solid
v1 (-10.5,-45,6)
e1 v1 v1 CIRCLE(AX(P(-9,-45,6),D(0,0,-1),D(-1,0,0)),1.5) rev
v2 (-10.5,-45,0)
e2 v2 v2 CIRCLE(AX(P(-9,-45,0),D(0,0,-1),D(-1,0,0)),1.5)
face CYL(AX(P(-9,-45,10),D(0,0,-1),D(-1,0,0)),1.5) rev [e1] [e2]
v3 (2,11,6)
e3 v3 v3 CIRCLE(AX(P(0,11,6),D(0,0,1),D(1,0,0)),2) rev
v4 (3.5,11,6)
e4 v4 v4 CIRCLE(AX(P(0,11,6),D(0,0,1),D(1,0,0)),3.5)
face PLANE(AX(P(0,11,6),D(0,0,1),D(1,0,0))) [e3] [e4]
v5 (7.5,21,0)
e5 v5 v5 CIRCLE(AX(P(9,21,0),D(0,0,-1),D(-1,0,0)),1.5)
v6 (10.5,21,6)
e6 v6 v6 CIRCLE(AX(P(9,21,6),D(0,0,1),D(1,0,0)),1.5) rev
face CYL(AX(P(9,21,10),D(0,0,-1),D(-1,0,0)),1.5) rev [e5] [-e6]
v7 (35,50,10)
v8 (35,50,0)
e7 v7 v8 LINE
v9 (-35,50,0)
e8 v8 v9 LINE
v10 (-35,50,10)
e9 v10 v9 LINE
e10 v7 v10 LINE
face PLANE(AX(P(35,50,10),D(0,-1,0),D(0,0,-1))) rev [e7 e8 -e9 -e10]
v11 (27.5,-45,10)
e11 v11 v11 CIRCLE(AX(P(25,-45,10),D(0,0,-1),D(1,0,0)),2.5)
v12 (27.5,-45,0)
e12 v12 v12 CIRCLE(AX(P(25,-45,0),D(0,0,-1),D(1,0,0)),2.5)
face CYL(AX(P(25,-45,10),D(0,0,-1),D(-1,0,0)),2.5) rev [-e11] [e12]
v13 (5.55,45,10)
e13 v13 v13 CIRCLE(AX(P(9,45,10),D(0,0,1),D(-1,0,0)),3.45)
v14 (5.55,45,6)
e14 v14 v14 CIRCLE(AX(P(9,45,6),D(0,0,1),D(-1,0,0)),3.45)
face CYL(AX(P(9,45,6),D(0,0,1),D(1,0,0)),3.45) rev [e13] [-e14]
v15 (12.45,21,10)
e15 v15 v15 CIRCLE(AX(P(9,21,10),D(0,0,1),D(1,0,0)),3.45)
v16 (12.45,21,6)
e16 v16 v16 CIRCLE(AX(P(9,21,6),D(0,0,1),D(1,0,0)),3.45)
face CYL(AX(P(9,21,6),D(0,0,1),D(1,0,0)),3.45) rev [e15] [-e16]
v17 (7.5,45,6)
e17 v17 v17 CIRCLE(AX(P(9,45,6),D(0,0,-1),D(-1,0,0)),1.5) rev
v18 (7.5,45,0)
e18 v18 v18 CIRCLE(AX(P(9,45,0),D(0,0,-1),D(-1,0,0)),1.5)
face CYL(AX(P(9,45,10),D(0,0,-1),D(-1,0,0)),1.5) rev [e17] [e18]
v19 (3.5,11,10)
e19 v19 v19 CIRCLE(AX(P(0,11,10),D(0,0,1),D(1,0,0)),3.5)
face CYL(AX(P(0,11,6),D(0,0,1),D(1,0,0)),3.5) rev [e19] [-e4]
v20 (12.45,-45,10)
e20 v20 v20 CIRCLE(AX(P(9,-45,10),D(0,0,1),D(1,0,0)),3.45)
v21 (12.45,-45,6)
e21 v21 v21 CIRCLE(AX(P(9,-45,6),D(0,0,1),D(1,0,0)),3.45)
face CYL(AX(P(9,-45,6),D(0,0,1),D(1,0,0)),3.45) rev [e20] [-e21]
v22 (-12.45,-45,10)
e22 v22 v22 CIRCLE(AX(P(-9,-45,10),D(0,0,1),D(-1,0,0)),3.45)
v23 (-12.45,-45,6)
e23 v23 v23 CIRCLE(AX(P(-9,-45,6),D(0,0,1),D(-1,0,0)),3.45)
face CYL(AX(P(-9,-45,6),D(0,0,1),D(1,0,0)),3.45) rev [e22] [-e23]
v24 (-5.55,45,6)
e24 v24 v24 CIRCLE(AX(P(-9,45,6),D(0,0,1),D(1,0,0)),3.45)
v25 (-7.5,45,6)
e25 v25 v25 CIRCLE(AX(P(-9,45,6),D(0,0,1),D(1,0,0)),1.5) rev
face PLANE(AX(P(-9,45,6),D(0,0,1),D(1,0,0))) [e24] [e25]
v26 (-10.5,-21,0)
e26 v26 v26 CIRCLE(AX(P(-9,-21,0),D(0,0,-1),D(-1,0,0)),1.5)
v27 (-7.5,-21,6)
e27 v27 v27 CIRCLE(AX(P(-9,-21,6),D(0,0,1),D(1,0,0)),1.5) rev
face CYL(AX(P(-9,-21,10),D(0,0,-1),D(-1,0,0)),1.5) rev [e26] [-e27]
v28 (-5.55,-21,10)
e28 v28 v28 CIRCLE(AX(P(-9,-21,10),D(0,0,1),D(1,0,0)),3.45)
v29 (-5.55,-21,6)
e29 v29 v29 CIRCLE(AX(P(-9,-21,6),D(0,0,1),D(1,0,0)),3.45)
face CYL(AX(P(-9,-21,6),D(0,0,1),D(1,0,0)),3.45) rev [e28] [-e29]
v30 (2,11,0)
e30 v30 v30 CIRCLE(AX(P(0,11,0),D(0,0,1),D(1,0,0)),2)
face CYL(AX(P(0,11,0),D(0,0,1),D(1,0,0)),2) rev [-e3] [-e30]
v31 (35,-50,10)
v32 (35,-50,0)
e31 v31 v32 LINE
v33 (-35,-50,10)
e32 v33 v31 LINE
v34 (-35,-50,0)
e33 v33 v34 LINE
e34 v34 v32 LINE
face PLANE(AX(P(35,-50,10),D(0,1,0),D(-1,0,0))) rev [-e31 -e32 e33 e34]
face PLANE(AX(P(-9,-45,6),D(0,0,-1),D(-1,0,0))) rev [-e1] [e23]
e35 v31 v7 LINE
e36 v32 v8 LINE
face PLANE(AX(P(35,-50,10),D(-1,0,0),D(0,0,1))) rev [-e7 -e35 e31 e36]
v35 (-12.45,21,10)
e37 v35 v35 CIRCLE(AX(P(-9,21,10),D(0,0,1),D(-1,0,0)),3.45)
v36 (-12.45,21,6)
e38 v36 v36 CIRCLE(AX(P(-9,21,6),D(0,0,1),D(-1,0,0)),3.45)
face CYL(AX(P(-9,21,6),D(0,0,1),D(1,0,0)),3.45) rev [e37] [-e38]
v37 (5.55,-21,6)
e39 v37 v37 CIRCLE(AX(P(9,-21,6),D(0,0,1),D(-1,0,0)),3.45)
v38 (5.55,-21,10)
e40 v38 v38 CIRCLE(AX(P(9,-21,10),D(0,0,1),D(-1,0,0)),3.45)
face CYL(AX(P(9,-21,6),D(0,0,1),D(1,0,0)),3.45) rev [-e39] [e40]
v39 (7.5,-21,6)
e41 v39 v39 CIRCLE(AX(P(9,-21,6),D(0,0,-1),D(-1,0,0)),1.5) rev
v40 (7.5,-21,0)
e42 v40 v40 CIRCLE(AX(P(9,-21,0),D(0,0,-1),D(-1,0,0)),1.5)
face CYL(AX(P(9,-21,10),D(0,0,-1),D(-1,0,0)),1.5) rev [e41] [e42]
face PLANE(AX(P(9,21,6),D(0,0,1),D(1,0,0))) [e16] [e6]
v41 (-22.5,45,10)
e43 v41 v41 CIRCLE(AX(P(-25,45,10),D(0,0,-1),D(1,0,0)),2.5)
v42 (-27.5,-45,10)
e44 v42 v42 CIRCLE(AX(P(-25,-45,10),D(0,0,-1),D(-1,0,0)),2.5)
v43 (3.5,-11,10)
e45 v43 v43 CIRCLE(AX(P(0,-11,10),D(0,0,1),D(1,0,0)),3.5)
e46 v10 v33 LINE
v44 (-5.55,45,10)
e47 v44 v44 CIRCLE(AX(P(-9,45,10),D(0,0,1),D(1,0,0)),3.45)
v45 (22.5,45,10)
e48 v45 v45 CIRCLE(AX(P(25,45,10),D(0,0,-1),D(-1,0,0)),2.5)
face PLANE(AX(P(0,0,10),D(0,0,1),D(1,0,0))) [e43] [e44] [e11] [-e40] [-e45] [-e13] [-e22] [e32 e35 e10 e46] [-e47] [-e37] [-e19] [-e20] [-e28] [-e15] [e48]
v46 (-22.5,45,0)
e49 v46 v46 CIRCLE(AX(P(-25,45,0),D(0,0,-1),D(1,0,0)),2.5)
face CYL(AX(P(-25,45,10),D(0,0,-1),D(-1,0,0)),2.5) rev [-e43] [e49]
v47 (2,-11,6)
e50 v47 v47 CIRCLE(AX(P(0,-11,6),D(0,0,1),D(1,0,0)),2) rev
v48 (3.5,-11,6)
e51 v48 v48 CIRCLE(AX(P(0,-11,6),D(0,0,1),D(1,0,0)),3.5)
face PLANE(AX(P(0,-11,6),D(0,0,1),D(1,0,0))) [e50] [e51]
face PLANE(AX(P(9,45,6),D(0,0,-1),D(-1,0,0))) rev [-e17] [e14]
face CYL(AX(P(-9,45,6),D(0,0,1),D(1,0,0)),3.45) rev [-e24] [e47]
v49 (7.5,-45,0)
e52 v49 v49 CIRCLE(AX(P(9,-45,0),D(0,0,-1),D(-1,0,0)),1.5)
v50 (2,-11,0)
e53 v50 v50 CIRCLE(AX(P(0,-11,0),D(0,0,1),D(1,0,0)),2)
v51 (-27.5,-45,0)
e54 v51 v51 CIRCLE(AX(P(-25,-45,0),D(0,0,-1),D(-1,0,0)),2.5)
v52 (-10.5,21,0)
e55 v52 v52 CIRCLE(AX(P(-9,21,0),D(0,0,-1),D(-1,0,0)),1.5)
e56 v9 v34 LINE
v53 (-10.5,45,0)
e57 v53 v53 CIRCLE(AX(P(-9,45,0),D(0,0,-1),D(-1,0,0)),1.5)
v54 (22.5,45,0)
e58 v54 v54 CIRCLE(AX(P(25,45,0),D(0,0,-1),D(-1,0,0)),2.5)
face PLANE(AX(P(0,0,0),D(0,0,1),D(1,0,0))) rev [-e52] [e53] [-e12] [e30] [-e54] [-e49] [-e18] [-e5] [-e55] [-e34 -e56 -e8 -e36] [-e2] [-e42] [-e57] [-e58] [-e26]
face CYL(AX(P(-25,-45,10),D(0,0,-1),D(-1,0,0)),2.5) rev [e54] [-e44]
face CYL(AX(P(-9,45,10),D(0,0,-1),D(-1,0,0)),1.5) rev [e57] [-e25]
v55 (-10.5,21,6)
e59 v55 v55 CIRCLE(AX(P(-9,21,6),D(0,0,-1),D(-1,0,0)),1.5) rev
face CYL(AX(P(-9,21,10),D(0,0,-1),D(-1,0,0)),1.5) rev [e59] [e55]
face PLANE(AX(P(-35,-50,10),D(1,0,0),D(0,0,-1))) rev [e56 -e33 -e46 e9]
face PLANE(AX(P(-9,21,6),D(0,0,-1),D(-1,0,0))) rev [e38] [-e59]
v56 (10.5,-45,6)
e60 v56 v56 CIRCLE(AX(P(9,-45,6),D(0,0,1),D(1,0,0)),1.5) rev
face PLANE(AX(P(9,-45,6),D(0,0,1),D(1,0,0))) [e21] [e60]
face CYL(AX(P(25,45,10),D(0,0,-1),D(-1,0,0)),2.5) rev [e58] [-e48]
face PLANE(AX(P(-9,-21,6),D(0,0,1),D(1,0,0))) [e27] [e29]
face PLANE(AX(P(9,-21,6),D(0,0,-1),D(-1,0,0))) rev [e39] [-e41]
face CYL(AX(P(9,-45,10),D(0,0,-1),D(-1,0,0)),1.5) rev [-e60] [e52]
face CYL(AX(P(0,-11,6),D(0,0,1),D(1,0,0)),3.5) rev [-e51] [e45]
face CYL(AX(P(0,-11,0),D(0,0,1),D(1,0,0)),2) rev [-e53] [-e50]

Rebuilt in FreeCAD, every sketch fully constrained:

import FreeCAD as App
import Part
import Sketcher

V = App.Vector
Q = App.Units.Quantity

doc = App.newDocument("Part")
body = doc.addObject("PartDesign::Body", "Body")

# Sketch on XY plane
sketch1 = body.newObject("Sketcher::SketchObject", "Sketch")
sketch1.AttachmentSupport = (doc.getObject("XY_Plane"), [""])
sketch1.MapMode = "FlatFace"
sketch1.addGeometry([
    Part.LineSegment(V(-35, 50, 0), V(-35, -50, 0)),
    Part.LineSegment(V(-35, -50, 0), V(35, -50, 0)),
    Part.LineSegment(V(35, -50, 0), V(35, 50, 0)),
    Part.LineSegment(V(35, 50, 0), V(-35, 50, 0)),
], False)
sketch1.addConstraint([
    Sketcher.Constraint("Coincident", 0, 2, 1, 1),
    Sketcher.Constraint("Coincident", 1, 2, 2, 1),
    Sketcher.Constraint("Coincident", 2, 2, 3, 1),
    Sketcher.Constraint("Coincident", 3, 2, 0, 1),
    Sketcher.Constraint("Vertical", 0),
    Sketcher.Constraint("Horizontal", 1),
    Sketcher.Constraint("Vertical", 2),
    Sketcher.Constraint("Horizontal", 3),
    Sketcher.Constraint("Symmetric", 0, 2, 2, 2, -1, 1),
    Sketcher.Constraint("DistanceX", 1, 1, 1, 2, Q("70 mm")),
    Sketcher.Constraint("DistanceY", 0, 2, 0, 1, Q("100 mm")),
])
pad1 = body.newObject("PartDesign::Pad", "Pad")
pad1.Profile = sketch1
pad1.Length = 10

# Sketch on XY plane
sketch2 = body.newObject("Sketcher::SketchObject", "Sketch001")
sketch2.AttachmentSupport = (doc.getObject("XY_Plane"), [""])
sketch2.MapMode = "FlatFace"
sketch2.addGeometry([
    Part.Circle(V(25, 45, 0), V(0, 0, 1), 2.5),
    Part.Circle(V(-25, 45, 0), V(0, 0, 1), 2.5),
    Part.Circle(V(25, -45, 0), V(0, 0, 1), 2.5),
    Part.Circle(V(-25, -45, 0), V(0, 0, 1), 2.5),
], False)
sketch2.addConstraint([
    Sketcher.Constraint("Equal", 0, 1),
    Sketcher.Constraint("Equal", 1, 2),
    Sketcher.Constraint("Equal", 2, 3),
    Sketcher.Constraint("Symmetric", 1, 3, 2, 3, -1, 1),
    Sketcher.Constraint("Symmetric", 0, 3, 3, 3, -1, 1),
    Sketcher.Constraint("Symmetric", 0, 3, 1, 3, -2),
    Sketcher.Constraint("Diameter", 0, Q("5 mm")),
    Sketcher.Constraint("DistanceX", -1, 1, 0, 3, Q("25 mm")),
    Sketcher.Constraint("DistanceY", -1, 1, 0, 3, Q("45 mm")),
])
pocket1 = body.newObject("PartDesign::Pocket", "Pocket")
pocket1.Profile = sketch2
pocket1.Type = "ThroughAll"
pocket1.Reversed = True

# Sketch on XY plane
sketch3 = body.newObject("Sketcher::SketchObject", "Sketch002")
sketch3.AttachmentSupport = (doc.getObject("XY_Plane"), [""])
sketch3.MapMode = "FlatFace"
sketch3.addGeometry([
    Part.Circle(V(-9, 21, 0), V(0, 0, 1), 1.5),  # 0
    Part.Circle(V(-9, 45, 0), V(0, 0, 1), 1.5),  # 1
    Part.Circle(V(9, 21, 0), V(0, 0, 1), 1.5),  # 2
    Part.Circle(V(9, 45, 0), V(0, 0, 1), 1.5),  # 3
    Part.Circle(V(-9, -45, 0), V(0, 0, 1), 1.5),  # 4
    Part.Circle(V(-9, -21, 0), V(0, 0, 1), 1.5),  # 5
    Part.Circle(V(9, -45, 0), V(0, 0, 1), 1.5),  # 6
    Part.Circle(V(9, -21, 0), V(0, 0, 1), 1.5),  # 7
], False)
sketch3.addConstraint([
    Sketcher.Constraint("Equal", 0, 1),
    Sketcher.Constraint("Equal", 1, 2),
    Sketcher.Constraint("Equal", 2, 3),
    Sketcher.Constraint("Equal", 3, 4),
    Sketcher.Constraint("Equal", 4, 5),
    Sketcher.Constraint("Equal", 5, 6),
    Sketcher.Constraint("Equal", 6, 7),
    Sketcher.Constraint("Symmetric", 3, 3, 4, 3, -1, 1),
    Sketcher.Constraint("Symmetric", 2, 3, 5, 3, -1, 1),
    Sketcher.Constraint("Symmetric", 1, 3, 6, 3, -1, 1),
    Sketcher.Constraint("Symmetric", 0, 3, 7, 3, -1, 1),
    Sketcher.Constraint("Symmetric", 0, 3, 2, 3, -2),
    Sketcher.Constraint("Symmetric", 1, 3, 3, 3, -2),
    Sketcher.Constraint("Vertical", 0, 3, 1, 3),
    Sketcher.Constraint("Diameter", 0, Q("3 mm")),
    Sketcher.Constraint("DistanceX", 0, 3, -1, 1, Q("9 mm")),
    Sketcher.Constraint("DistanceY", -1, 1, 0, 3, Q("21 mm")),
    Sketcher.Constraint("DistanceY", -1, 1, 1, 3, Q("45 mm")),
])
pocket2 = body.newObject("PartDesign::Pocket", "Pocket001")
pocket2.Profile = sketch3
pocket2.Type = "ThroughAll"
pocket2.Reversed = True

# Sketch on XY plane
sketch4 = body.newObject("Sketcher::SketchObject", "Sketch003")
sketch4.AttachmentSupport = (doc.getObject("XY_Plane"), [""])
sketch4.MapMode = "FlatFace"
sketch4.AttachmentOffset = App.Placement(V(0, 0, 10), App.Rotation())
sketch4.addGeometry([
    Part.Circle(V(-9, 45, 0), V(0, 0, 1), 3.5),  # 0
    Part.Circle(V(-9, 21, 0), V(0, 0, 1), 3.5),  # 1
    Part.Circle(V(9, 21, 0), V(0, 0, 1), 3.5),  # 2
    Part.Circle(V(9, 45, 0), V(0, 0, 1), 3.5),  # 3
    Part.Circle(V(9, -21, 0), V(0, 0, 1), 3.5),  # 4
    Part.Circle(V(-9, -21, 0), V(0, 0, 1), 3.5),  # 5
    Part.Circle(V(-9, -45, 0), V(0, 0, 1), 3.5),  # 6
    Part.Circle(V(9, -45, 0), V(0, 0, 1), 3.5),  # 7
], False)
sketch4.addConstraint([
    Sketcher.Constraint("Equal", 0, 1),
    Sketcher.Constraint("Equal", 1, 2),
    Sketcher.Constraint("Equal", 2, 3),
    Sketcher.Constraint("Equal", 3, 4),
    Sketcher.Constraint("Equal", 4, 5),
    Sketcher.Constraint("Equal", 5, 6),
    Sketcher.Constraint("Equal", 6, 7),
    Sketcher.Constraint("Symmetric", 1, 3, 4, 3, -1, 1),
    Sketcher.Constraint("Symmetric", 2, 3, 5, 3, -1, 1),
    Sketcher.Constraint("Symmetric", 3, 3, 6, 3, -1, 1),
    Sketcher.Constraint("Symmetric", 0, 3, 7, 3, -1, 1),
    Sketcher.Constraint("Symmetric", 1, 3, 2, 3, -2),
    Sketcher.Constraint("Symmetric", 0, 3, 3, 3, -2),
    Sketcher.Constraint("Vertical", 0, 3, 1, 3),
    Sketcher.Constraint("Diameter", 0, Q("6.9 mm")),
    Sketcher.Constraint("DistanceX", 0, 3, -1, 1, Q("9 mm")),
    Sketcher.Constraint("DistanceY", -1, 1, 0, 3, Q("45 mm")),
    Sketcher.Constraint("DistanceY", -1, 1, 1, 3, Q("21 mm")),
])
pocket3 = body.newObject("PartDesign::Pocket", "Pocket002")
pocket3.Profile = sketch4
pocket3.Length = 4

# Sketch on XY plane
sketch5 = body.newObject("Sketcher::SketchObject", "Sketch004")
sketch5.AttachmentSupport = (doc.getObject("XY_Plane"), [""])
sketch5.MapMode = "FlatFace"
sketch5.AttachmentOffset = App.Placement(V(0, 0, 10), App.Rotation())
sketch5.addGeometry([
    Part.Circle(V(0, -11, 0), V(0, 0, 1), 2),
    Part.Circle(V(0, 11, 0), V(0, 0, 1), 2),
], False)
sketch5.addConstraint([
    Sketcher.Constraint("Equal", 0, 1),
    Sketcher.Constraint("Symmetric", 0, 3, 1, 3, -1, 1),
    Sketcher.Constraint("PointOnObject", 0, 3, -2),
    Sketcher.Constraint("Diameter", 0, Q("4 mm")),
    Sketcher.Constraint("DistanceY", 0, 3, -1, 1, Q("11 mm")),
])
pocket4 = body.newObject("PartDesign::Pocket", "Pocket003")
pocket4.Profile = sketch5
pocket4.Type = "ThroughAll"

# Sketch on XY plane
sketch6 = body.newObject("Sketcher::SketchObject", "Sketch005")
sketch6.AttachmentSupport = (doc.getObject("XY_Plane"), [""])
sketch6.MapMode = "FlatFace"
sketch6.AttachmentOffset = App.Placement(V(0, 0, 10), App.Rotation())
sketch6.addGeometry([
    Part.Circle(V(0, 11, 0), V(0, 0, 1), 3.5),
    Part.Circle(V(0, -11, 0), V(0, 0, 1), 3.5),
], False)
sketch6.addConstraint([
    Sketcher.Constraint("Equal", 0, 1),
    Sketcher.Constraint("Symmetric", 0, 3, 1, 3, -1, 1),
    Sketcher.Constraint("PointOnObject", 0, 3, -2),
    Sketcher.Constraint("Diameter", 0, Q("7 mm")),
    Sketcher.Constraint("DistanceY", -1, 1, 0, 3, Q("11 mm")),
])
pocket5 = body.newObject("PartDesign::Pocket", "Pocket004")
pocket5.Profile = sketch6
pocket5.Length = 4

doc.recompute()
